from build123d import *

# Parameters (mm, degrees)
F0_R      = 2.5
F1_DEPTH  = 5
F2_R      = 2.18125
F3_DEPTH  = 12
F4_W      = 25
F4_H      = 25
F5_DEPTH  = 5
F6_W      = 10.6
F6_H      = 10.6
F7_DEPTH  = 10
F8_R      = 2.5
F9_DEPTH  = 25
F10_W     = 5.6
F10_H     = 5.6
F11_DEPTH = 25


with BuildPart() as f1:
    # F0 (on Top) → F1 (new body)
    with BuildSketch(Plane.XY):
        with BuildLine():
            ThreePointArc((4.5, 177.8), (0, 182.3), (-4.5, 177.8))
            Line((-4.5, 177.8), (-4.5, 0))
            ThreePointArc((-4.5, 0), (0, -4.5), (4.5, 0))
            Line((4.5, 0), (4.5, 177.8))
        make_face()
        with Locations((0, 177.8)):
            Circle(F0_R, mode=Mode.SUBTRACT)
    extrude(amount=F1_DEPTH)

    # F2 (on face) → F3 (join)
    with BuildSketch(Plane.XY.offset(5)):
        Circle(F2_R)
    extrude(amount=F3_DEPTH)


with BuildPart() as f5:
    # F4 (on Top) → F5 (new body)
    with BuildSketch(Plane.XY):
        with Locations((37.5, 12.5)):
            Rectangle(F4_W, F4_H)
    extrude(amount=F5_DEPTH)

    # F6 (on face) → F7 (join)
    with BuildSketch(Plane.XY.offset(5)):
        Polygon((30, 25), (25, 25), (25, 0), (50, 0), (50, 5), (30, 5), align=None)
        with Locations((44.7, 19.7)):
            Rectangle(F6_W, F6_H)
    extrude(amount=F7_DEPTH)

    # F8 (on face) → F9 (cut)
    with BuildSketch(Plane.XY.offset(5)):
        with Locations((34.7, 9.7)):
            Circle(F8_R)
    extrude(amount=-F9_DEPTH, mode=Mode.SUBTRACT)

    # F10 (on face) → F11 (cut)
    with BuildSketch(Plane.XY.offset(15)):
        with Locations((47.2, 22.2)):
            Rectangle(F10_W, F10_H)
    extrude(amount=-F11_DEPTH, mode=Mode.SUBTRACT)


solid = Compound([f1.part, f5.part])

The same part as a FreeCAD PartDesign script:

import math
import FreeCAD as App
import Part
import Sketcher
from FreeCAD import Vector

doc = App.newDocument("Part")
params = doc.addObject("Spreadsheet::Sheet", "Params")
for row, (alias, value) in enumerate([
    ("sketch1_diameter", "5 mm"),
    ("sketch1_radius", "4.5 mm"),
    ("sketch1_height", "177.8 mm"),
    ("pad1_length", "5 mm"),
    ("pad2_length", "12 mm"),
    ("sketch3_width", "25 mm"),
    ("pad3_length", "5 mm"),
    ("sketch4_width", "5 mm"),
    ("sketch4_width2", "25 mm"),
    ("sketch4_width3", "10.6 mm"),
    ("pad4_length", "10 mm"),
    ("sketch5_diameter", "5 mm"),
    ("pocket1_length", "25 mm"),
    ("sketch6_width", "5.6 mm"),
    ("pocket2_length", "25 mm"),
], start=1):
    params.set(f"A{row}", alias)
    params.set(f"B{row}", "=" + value)
    params.setAlias(f"B{row}", alias)

body = doc.addObject("PartDesign::Body", "Body")

# Sketch on XY plane
sketch1 = body.newObject("Sketcher::SketchObject", "Sketch")
sketch1.AttachmentSupport = (doc.getObject("XY_Plane"), [""])
sketch1.MapMode = "FlatFace"
sketch1.addGeometry([
    Part.ArcOfCircle(Part.Circle(Vector(0, 177.8, 0), Vector(0, 0, 1), 4.5), math.radians(0), math.radians(180)),  # 0
    Part.LineSegment(Vector(-4.5, 177.8, 0), Vector(-4.5, 0, 0)),  # 1
    Part.ArcOfCircle(Part.Circle(Vector(0, 0, 0), Vector(0, 0, 1), 4.5), math.radians(180), math.radians(360)),  # 2
    Part.LineSegment(Vector(4.5, 0, 0), Vector(4.5, 177.8, 0)),  # 3
    Part.Circle(Vector(0, 177.8, 0), Vector(0, 0, 1), 2.5),  # 4
], False)
sketch1.addConstraint([
    Sketcher.Constraint("Tangent", 0, 2, 1, 1),
    Sketcher.Constraint("Tangent", 1, 2, 2, 1),
    Sketcher.Constraint("Tangent", 2, 2, 3, 1),
    Sketcher.Constraint("Tangent", 3, 2, 0, 1),
    Sketcher.Constraint("Vertical", 1),
    Sketcher.Constraint("Vertical", 3),
    Sketcher.Constraint("Coincident", 2, 3, -1, 1),
    Sketcher.Constraint("Coincident", 4, 3, 0, 3),
    Sketcher.Constraint("Diameter", 4, 5.0),
    Sketcher.Constraint("Radius", 0, 4.5),
    Sketcher.Constraint("DistanceY", 1, 2, 1, 1, 177.8),
])
sketch1.setExpression("Constraints[8]", "Params.sketch1_diameter")
sketch1.setExpression("Constraints[9]", "Params.sketch1_radius")
sketch1.setExpression("Constraints[10]", "Params.sketch1_height")
pad1 = body.newObject("PartDesign::Pad", "Pad")
pad1.Profile = sketch1
pad1.setExpression("Length", "Params.pad1_length")

# Sketch on XY plane
sketch2 = body.newObject("Sketcher::SketchObject", "Sketch001")
sketch2.AttachmentSupport = (doc.getObject("XY_Plane"), [""])
sketch2.MapMode = "FlatFace"
sketch2.AttachmentOffset = App.Placement(Vector(0, 0, 5), App.Rotation())
sketch2.addGeometry(Part.Circle(Vector(0, 0, 0), Vector(0, 0, 1), 2.18125), False)
sketch2.addConstraint([
    Sketcher.Constraint("Coincident", 0, 3, -1, 1),
    Sketcher.Constraint("Diameter", 0, 4.3625),
])
pad2 = body.newObject("PartDesign::Pad", "Pad001")
pad2.Profile = sketch2
pad2.setExpression("Length", "Params.pad2_length")
body2 = doc.addObject("PartDesign::Body", "Body001")

# Sketch on XY plane
sketch3 = body2.newObject("Sketcher::SketchObject", "Sketch002")
sketch3.AttachmentSupport = (doc.getObject("XY_Plane001"), [""])
sketch3.MapMode = "FlatFace"
sketch3.addGeometry([
    Part.LineSegment(Vector(25, 25, 0), Vector(25, 0, 0)),
    Part.LineSegment(Vector(25, 0, 0), Vector(50, 0, 0)),
    Part.LineSegment(Vector(50, 0, 0), Vector(50, 25, 0)),
    Part.LineSegment(Vector(50, 25, 0), Vector(25, 25, 0)),
], False)
sketch3.addConstraint([
    Sketcher.Constraint("Coincident", 0, 2, 1, 1),
    Sketcher.Constraint("Coincident", 1, 2, 2, 1),
    Sketcher.Constraint("Coincident", 2, 2, 3, 1),
    Sketcher.Constraint("Coincident", 3, 2, 0, 1),
    Sketcher.Constraint("Vertical", 0),
    Sketcher.Constraint("Horizontal", 1),
    Sketcher.Constraint("Vertical", 2),
    Sketcher.Constraint("Horizontal", 3),
    Sketcher.Constraint("PointOnObject", 0, 2, -1),
    Sketcher.Constraint("Equal", 3, 0),
    Sketcher.Constraint("DistanceX", 1, 1, 1, 2, 25.0),
    Sketcher.Constraint("DistanceX", -1, 1, 0, 2, 25.0),
])
sketch3.setExpression("Constraints[10]", "Params.sketch3_width")
pad3 = body2.newObject("PartDesign::Pad", "Pad002")
pad3.Profile = sketch3
pad3.setExpression("Length", "Params.pad3_length")

# Sketch on XY plane
sketch4 = body2.newObject("Sketcher::SketchObject", "Sketch003")
sketch4.AttachmentSupport = (doc.getObject("XY_Plane001"), [""])
sketch4.MapMode = "FlatFace"
sketch4.AttachmentOffset = App.Placement(Vector(0, 0, 5), App.Rotation())
sketch4.addGeometry([
    Part.LineSegment(Vector(30, 25, 0), Vector(25, 25, 0)),  # 0
    Part.LineSegment(Vector(25, 25, 0), Vector(25, 0, 0)),  # 1
    Part.LineSegment(Vector(25, 0, 0), Vector(50, 0, 0)),  # 2
    Part.LineSegment(Vector(50, 0, 0), Vector(50, 5, 0)),  # 3
    Part.LineSegment(Vector(50, 5, 0), Vector(30, 5, 0)),  # 4
    Part.LineSegment(Vector(30, 5, 0), Vector(30, 25, 0)),  # 5
    Part.LineSegment(Vector(39.4, 25, 0), Vector(39.4, 14.4, 0)),  # 6
    Part.LineSegment(Vector(39.4, 14.4, 0), Vector(50, 14.4, 0)),  # 7
    Part.LineSegment(Vector(50, 14.4, 0), Vector(50, 25, 0)),  # 8
    Part.LineSegment(Vector(50, 25, 0), Vector(39.4, 25, 0)),  # 9
], False)
sketch4.addConstraint([
    Sketcher.Constraint("Coincident", 0, 2, 1, 1),
    Sketcher.Constraint("Coincident", 1, 2, 2, 1),
    Sketcher.Constraint("Coincident", 2, 2, 3, 1),
    Sketcher.Constraint("Coincident", 3, 2, 4, 1),
    Sketcher.Constraint("Coincident", 4, 2, 5, 1),
    Sketcher.Constraint("Coincident", 5, 2, 0, 1),
    Sketcher.Constraint("Coincident", 6, 2, 7, 1),
    Sketcher.Constraint("Coincident", 7, 2, 8, 1),
    Sketcher.Constraint("Coincident", 8, 2, 9, 1),
    Sketcher.Constraint("Coincident", 9, 2, 6, 1),
    Sketcher.Constraint("Horizontal", 0),
    Sketcher.Constraint("Vertical", 1),
    Sketcher.Constraint("Horizontal", 2),
    Sketcher.Constraint("Vertical", 3),
    Sketcher.Constraint("Horizontal", 4),
    Sketcher.Constraint("Vertical", 5),
    Sketcher.Constraint("Vertical", 6),
    Sketcher.Constraint("Horizontal", 7),
    Sketcher.Constraint("Vertical", 8),
    Sketcher.Constraint("Horizontal", 9),
    Sketcher.Constraint("PointOnObject", 1, 2, -1),
    Sketcher.Constraint("Horizontal", 5, 2, 8, 2),
    Sketcher.Constraint("Vertical", 3, 2, 7, 2),
    Sketcher.Constraint("Equal", 2, 1),
    Sketcher.Constraint("Equal", 0, 3),
    Sketcher.Constraint("Equal", 9, 6),
    Sketcher.Constraint("DistanceX", 0, 2, 0, 1, 5.0),
    Sketcher.Constraint("DistanceX", 2, 1, 2, 2, 25.0),
    Sketcher.Constraint("DistanceX", 7, 1, 7, 2, 10.6),
    Sketcher.Constraint("DistanceX", -1, 1, 0, 2, 25.0),
])
sketch4.setExpression("Constraints[26]", "Params.sketch4_width")
sketch4.setExpression("Constraints[27]", "Params.sketch4_width2")
sketch4.setExpression("Constraints[28]", "Params.sketch4_width3")
pad4 = body2.newObject("PartDesign::Pad", "Pad003")
pad4.Profile = sketch4
pad4.setExpression("Length", "Params.pad4_length")

# Sketch on XY plane
sketch5 = body2.newObject("Sketcher::SketchObject", "Sketch004")
sketch5.AttachmentSupport = (doc.getObject("XY_Plane001"), [""])
sketch5.MapMode = "FlatFace"
sketch5.AttachmentOffset = App.Placement(Vector(0, 0, 5), App.Rotation())
sketch5.addGeometry(Part.Circle(Vector(34.7, 9.7, 0), Vector(0, 0, 1), 2.5), False)
sketch5.addConstraint([
    Sketcher.Constraint("Diameter", 0, 5.0),
    Sketcher.Constraint("DistanceX", -1, 1, 0, 3, 34.7),
    Sketcher.Constraint("DistanceY", -1, 1, 0, 3, 9.7),
])
sketch5.setExpression("Constraints[0]", "Params.sketch5_diameter")
pocket1 = body2.newObject("PartDesign::Pocket", "Pocket")
pocket1.Profile = sketch5
pocket1.setExpression("Length", "Params.pocket1_length")

# Sketch on XY plane
sketch6 = body2.newObject("Sketcher::SketchObject", "Sketch005")
sketch6.AttachmentSupport = (doc.getObject("XY_Plane001"), [""])
sketch6.MapMode = "FlatFace"
sketch6.AttachmentOffset = App.Placement(Vector(0, 0, 15), App.Rotation())
sketch6.addGeometry([
    Part.LineSegment(Vector(44.4, 25, 0), Vector(44.4, 19.4, 0)),
    Part.LineSegment(Vector(44.4, 19.4, 0), Vector(50, 19.4, 0)),
    Part.LineSegment(Vector(50, 19.4, 0), Vector(50, 25, 0)),
    Part.LineSegment(Vector(50, 25, 0), Vector(44.4, 25, 0)),
], False)
sketch6.addConstraint([
    Sketcher.Constraint("Coincident", 0, 2, 1, 1),
    Sketcher.Constraint("Coincident", 1, 2, 2, 1),
    Sketcher.Constraint("Coincident", 2, 2, 3, 1),
    Sketcher.Constraint("Coincident", 3, 2, 0, 1),
    Sketcher.Constraint("Vertical", 0),
    Sketcher.Constraint("Horizontal", 1),
    Sketcher.Constraint("Vertical", 2),
    Sketcher.Constraint("Horizontal", 3),
    Sketcher.Constraint("Equal", 3, 0),
    Sketcher.Constraint("DistanceX", 1, 1, 1, 2, 5.6),
    Sketcher.Constraint("DistanceX", -1, 1, 1, 2, 50.0),
    Sketcher.Constraint("DistanceY", -1, 1, 2, 2, 25.0),
])
sketch6.setExpression("Constraints[9]", "Params.sketch6_width")
pocket2 = body2.newObject("PartDesign::Pocket", "Pocket001")
pocket2.Profile = sketch6
pocket2.setExpression("Length", "Params.pocket2_length")

doc.recompute()
